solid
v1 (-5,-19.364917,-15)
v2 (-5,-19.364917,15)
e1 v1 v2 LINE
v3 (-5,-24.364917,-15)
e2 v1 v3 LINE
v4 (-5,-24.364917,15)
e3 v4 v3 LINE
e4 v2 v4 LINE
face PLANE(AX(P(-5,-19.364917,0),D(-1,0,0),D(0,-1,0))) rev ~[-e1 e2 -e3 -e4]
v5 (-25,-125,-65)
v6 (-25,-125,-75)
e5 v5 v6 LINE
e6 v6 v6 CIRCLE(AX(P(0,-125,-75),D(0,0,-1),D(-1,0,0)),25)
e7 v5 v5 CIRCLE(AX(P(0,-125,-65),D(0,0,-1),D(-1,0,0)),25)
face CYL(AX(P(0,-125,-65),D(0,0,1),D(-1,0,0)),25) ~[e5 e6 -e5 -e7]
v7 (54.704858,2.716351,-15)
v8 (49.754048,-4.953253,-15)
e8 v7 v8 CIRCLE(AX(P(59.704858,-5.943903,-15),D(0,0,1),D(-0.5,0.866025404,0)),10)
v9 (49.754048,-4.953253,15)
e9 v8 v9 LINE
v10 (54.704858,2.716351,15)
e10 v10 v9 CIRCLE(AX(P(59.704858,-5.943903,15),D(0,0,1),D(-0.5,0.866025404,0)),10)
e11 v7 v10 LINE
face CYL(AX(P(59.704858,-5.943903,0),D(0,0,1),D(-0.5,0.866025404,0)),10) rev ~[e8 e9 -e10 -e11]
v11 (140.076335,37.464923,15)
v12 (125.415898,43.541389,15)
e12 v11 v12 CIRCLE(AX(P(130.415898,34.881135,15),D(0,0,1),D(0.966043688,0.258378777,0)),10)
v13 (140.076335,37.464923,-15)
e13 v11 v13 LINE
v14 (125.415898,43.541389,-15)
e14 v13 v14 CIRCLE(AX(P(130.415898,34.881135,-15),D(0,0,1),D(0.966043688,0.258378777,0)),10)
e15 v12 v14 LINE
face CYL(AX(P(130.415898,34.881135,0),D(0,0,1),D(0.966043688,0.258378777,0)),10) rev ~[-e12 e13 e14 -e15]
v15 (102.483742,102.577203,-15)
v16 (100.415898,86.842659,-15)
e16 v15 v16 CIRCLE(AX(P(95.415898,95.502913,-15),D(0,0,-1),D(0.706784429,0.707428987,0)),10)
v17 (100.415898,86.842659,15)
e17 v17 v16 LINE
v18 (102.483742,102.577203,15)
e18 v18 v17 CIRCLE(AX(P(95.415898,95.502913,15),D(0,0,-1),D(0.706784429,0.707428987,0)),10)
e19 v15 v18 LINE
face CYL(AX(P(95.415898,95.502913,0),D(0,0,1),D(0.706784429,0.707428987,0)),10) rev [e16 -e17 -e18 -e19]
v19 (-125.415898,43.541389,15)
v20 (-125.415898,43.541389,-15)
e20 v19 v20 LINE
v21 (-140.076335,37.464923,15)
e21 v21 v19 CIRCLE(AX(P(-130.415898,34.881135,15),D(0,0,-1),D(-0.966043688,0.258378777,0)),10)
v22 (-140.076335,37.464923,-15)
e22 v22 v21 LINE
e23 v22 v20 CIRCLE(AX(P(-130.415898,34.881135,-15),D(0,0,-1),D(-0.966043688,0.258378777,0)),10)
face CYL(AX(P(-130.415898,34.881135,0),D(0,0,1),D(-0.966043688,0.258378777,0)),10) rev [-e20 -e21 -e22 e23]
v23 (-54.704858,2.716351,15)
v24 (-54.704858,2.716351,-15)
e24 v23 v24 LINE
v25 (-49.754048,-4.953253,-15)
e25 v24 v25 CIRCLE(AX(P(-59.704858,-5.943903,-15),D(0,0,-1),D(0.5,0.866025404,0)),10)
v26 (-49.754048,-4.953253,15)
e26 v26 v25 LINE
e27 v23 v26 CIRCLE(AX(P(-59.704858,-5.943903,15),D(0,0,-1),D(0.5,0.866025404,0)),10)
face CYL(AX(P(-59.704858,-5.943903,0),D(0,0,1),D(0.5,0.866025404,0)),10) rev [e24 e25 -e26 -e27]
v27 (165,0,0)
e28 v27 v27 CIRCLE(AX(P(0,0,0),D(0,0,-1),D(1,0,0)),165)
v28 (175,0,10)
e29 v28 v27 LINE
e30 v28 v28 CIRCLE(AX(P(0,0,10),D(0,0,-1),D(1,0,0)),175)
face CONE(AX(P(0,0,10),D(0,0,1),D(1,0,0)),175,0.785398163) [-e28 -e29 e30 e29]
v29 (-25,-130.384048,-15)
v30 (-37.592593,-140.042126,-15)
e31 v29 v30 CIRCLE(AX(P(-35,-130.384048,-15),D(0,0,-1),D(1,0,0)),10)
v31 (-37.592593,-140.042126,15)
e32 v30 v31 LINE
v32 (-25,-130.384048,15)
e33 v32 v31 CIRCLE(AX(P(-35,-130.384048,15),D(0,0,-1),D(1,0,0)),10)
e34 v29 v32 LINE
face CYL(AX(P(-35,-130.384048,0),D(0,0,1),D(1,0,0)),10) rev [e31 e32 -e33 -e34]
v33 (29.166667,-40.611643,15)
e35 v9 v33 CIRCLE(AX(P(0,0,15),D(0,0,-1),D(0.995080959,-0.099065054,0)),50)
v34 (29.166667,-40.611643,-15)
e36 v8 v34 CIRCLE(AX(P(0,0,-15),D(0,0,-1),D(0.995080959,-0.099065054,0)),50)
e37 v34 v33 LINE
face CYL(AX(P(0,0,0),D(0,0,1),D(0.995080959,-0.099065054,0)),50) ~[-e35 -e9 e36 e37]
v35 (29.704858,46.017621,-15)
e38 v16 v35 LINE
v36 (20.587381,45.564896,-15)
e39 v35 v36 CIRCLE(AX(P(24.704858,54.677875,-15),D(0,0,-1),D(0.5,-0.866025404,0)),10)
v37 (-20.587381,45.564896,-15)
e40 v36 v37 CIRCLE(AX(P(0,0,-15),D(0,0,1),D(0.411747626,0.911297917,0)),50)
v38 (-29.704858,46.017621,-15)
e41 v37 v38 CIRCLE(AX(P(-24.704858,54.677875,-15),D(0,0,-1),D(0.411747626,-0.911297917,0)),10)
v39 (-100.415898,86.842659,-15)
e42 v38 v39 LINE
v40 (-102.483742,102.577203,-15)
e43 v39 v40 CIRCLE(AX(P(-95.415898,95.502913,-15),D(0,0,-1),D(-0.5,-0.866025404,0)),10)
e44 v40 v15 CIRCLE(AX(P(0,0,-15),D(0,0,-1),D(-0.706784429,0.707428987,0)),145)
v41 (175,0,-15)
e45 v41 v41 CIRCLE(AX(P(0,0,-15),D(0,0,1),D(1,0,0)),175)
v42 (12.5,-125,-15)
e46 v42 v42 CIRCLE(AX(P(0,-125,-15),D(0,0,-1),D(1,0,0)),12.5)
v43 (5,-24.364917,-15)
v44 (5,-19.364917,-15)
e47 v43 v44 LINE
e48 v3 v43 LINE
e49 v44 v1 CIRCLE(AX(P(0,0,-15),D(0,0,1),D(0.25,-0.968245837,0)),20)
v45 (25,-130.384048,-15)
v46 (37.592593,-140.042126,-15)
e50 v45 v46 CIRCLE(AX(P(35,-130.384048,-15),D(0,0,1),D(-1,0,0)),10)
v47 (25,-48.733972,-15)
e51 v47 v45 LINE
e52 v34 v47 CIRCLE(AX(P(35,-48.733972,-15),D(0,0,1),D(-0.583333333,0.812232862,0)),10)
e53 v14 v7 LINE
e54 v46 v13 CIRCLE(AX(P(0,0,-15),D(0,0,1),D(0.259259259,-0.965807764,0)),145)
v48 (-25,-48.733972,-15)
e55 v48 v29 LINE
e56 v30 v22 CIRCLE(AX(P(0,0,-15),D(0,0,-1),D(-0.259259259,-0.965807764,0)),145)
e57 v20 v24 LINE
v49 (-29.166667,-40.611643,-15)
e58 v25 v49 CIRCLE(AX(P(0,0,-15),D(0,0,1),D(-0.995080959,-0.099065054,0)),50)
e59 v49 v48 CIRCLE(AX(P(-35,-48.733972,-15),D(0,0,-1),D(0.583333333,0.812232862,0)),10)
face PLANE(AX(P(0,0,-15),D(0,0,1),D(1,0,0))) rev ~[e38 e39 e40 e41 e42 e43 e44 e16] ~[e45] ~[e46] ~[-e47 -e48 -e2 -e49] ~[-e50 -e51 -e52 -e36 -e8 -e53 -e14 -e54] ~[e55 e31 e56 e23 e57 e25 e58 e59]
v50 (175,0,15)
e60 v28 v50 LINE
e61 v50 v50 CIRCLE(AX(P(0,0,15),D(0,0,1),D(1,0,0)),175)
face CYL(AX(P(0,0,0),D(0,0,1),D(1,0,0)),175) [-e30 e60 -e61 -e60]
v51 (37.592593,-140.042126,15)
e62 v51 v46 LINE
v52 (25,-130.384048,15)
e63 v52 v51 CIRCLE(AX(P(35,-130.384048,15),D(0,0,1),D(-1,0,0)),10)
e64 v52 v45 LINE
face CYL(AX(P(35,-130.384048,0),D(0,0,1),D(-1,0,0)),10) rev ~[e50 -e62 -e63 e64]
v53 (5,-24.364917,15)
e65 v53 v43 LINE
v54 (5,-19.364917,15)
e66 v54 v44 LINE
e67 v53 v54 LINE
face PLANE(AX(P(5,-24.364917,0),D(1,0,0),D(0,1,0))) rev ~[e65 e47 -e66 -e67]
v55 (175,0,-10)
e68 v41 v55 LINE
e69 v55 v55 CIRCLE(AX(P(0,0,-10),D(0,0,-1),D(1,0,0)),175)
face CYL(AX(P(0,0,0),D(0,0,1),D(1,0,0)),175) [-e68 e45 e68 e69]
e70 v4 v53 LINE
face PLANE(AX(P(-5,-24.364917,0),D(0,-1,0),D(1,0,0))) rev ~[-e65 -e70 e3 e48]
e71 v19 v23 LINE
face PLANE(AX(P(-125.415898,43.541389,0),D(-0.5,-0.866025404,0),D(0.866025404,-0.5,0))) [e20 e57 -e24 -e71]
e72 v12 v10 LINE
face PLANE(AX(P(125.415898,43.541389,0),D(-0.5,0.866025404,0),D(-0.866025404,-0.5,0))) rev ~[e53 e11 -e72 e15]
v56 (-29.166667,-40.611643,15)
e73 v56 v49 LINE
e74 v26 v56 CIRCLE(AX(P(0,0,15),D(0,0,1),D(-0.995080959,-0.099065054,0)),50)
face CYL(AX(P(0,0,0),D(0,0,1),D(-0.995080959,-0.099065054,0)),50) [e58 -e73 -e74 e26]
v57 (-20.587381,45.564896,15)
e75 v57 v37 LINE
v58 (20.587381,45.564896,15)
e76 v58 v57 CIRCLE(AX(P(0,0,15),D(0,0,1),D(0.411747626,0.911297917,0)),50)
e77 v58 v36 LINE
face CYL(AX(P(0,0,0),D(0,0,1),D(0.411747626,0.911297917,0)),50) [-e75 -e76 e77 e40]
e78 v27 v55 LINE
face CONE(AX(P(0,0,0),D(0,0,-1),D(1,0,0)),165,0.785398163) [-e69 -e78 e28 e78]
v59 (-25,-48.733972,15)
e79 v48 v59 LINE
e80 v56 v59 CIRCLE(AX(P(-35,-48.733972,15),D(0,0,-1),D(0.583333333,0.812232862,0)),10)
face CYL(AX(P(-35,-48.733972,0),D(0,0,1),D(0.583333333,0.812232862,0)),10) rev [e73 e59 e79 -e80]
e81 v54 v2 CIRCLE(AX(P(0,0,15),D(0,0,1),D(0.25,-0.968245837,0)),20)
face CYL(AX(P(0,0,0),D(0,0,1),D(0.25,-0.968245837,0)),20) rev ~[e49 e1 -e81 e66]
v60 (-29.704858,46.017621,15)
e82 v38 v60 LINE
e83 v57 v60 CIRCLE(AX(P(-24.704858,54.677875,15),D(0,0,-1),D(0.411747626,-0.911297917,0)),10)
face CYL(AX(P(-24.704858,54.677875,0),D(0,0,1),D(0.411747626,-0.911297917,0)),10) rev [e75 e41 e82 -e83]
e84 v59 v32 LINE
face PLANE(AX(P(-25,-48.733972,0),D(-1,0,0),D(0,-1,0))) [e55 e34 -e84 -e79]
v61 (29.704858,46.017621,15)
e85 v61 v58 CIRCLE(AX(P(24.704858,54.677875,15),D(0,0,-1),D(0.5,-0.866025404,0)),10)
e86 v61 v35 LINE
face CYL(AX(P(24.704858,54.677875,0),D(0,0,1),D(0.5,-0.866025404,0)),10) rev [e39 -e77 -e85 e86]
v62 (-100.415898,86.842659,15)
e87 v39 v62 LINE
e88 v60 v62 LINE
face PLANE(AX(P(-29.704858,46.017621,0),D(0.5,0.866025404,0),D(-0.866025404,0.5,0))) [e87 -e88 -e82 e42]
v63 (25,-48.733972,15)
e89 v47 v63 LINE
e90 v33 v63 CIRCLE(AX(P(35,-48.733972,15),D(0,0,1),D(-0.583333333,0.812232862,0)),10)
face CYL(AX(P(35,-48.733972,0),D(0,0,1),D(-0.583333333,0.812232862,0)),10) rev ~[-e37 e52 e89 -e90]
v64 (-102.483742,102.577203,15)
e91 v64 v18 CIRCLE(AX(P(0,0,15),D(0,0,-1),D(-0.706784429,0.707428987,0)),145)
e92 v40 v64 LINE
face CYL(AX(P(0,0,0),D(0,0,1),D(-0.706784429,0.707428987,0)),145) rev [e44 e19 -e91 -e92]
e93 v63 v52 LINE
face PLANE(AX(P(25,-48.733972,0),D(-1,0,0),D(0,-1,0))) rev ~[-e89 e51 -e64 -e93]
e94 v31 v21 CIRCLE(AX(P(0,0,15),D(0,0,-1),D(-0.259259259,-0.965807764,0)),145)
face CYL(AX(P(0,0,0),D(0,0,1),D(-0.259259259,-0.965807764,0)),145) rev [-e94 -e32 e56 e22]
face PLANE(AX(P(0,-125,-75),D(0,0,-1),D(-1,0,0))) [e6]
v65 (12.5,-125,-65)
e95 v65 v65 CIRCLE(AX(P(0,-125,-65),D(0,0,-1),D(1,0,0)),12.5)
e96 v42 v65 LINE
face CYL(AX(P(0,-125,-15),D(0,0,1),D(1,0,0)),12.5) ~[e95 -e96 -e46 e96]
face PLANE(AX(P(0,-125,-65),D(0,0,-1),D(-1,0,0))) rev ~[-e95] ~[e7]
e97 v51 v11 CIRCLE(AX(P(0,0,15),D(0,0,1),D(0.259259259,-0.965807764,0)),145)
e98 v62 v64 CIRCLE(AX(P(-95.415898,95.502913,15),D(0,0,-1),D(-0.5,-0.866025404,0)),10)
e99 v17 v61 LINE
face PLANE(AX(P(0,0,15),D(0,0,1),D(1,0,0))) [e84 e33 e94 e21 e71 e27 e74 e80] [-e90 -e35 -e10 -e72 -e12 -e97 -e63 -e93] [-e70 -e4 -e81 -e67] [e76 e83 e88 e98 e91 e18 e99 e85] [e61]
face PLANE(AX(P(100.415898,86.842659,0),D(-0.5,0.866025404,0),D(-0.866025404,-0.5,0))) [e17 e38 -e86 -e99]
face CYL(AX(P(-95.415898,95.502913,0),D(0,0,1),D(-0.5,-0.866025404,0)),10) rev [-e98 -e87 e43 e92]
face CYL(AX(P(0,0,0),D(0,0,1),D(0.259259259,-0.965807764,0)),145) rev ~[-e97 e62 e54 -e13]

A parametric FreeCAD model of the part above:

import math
import FreeCAD as App
import Part
import Sketcher
Q = App.Units.Quantity

doc = App.newDocument("Part")
body = doc.addObject("PartDesign::Body", "Body")

sketch1 = body.newObject("Sketcher::SketchObject", "Sketch")
sketch1.AttachmentSupport = (doc.getObject("XY_Plane"), [""])
sketch1.MapMode = "FlatFace"
sketch1.addGeometry([
    Part.Circle(App.Vector(0, 0, 0), App.Vector(0, 0, 1), 175),
    Part.ArcOfCircle(Part.Circle(App.Vector(-35, -49, 0), App.Vector(0, 0, 1), 10), math.radians(0), math.radians(54)),
    Part.LineSegment(App.Vector(-25, -49, 0), App.Vector(-25, -130, 0)),
    Part.ArcOfCircle(Part.Circle(App.Vector(-35, -130, 0), App.Vector(0, 0, 1), 10), math.radians(-105), math.radians(0)),
    Part.ArcOfCircle(Part.Circle(App.Vector(0, 0, 0), App.Vector(0, 0, 1), 145), math.radians(165), math.radians(255)),
    Part.ArcOfCircle(Part.Circle(App.Vector(-130, 35, 0), App.Vector(0, 0, 1), 10), math.radians(60), math.radians(165)),
    Part.LineSegment(App.Vector(-125, 44, 0), App.Vector(-55, 3, 0)),
    Part.ArcOfCircle(Part.Circle(App.Vector(-60, -6, 0), App.Vector(0, 0, 1), 10), math.radians(6), math.radians(60)),
    Part.ArcOfCircle(Part.Circle(App.Vector(0, 0, 0), App.Vector(0, 0, 1), 50), math.radians(-174), math.radians(-126)),
    Part.LineSegment(App.Vector(-5, -24, 0), App.Vector(-5, -19, 0)),
    Part.ArcOfCircle(Part.Circle(App.Vector(0, 0, 0), App.Vector(0, 0, 1), 20), math.radians(-76), math.radians(256)),
    Part.LineSegment(App.Vector(5, -19, 0), App.Vector(5, -24, 0)),
    Part.LineSegment(App.Vector(5, -24, 0), App.Vector(-5, -24, 0)),
    Part.LineSegment(App.Vector(25, -130, 0), App.Vector(25, -49, 0)),
    Part.ArcOfCircle(Part.Circle(App.Vector(35, -49, 0), App.Vector(0, 0, 1), 10), math.radians(126), math.radians(180)),
    Part.ArcOfCircle(Part.Circle(App.Vector(0, 0, 0), App.Vector(0, 0, 1), 50), math.radians(-54), math.radians(-6)),
    Part.ArcOfCircle(Part.Circle(App.Vector(60, -6, 0), App.Vector(0, 0, 1), 10), math.radians(120), math.radians(174)),
    Part.LineSegment(App.Vector(55, 3, 0), App.Vector(125, 44, 0)),
    Part.ArcOfCircle(Part.Circle(App.Vector(130, 35, 0), App.Vector(0, 0, 1), 10), math.radians(15), math.radians(120)),
    Part.ArcOfCircle(Part.Circle(App.Vector(0, 0, 0), App.Vector(0, 0, 1), 145), math.radians(-75), math.radians(15)),
    Part.ArcOfCircle(Part.Circle(App.Vector(35, -130, 0), App.Vector(0, 0, 1), 10), math.radians(180), math.radians(285)),
    Part.ArcOfCircle(Part.Circle(App.Vector(-25, 55, 0), App.Vector(0, 0, 1), 10), math.radians(-120), math.radians(-66)),
    Part.LineSegment(App.Vector(-30, 46, 0), App.Vector(-100, 87, 0)),
    Part.ArcOfCircle(Part.Circle(App.Vector(-95, 96, 0), App.Vector(0, 0, 1), 10), math.radians(135), math.radians(240)),
    Part.ArcOfCircle(Part.Circle(App.Vector(0, 0, 0), App.Vector(0, 0, 1), 145), math.radians(45), math.radians(135)),
    Part.ArcOfCircle(Part.Circle(App.Vector(95, 96, 0), App.Vector(0, 0, 1), 10), math.radians(-60), math.radians(45)),
    Part.LineSegment(App.Vector(100, 87, 0), App.Vector(30, 46, 0)),
    Part.ArcOfCircle(Part.Circle(App.Vector(25, 55, 0), App.Vector(0, 0, 1), 10), math.radians(-114), math.radians(-60)),
    Part.ArcOfCircle(Part.Circle(App.Vector(0, 0, 0), App.Vector(0, 0, 1), 50), math.radians(66), math.radians(114)),
], False)
sketch1.addConstraint([
    Sketcher.Constraint("Tangent", 1, 1, 2, 1),
    Sketcher.Constraint("Tangent", 2, 2, 3, 2),
    Sketcher.Constraint("Tangent", 3, 1, 4, 2),
    Sketcher.Constraint("Tangent", 4, 1, 5, 2),
    Sketcher.Constraint("Tangent", 5, 1, 6, 1),
    Sketcher.Constraint("Tangent", 6, 2, 7, 2),
    Sketcher.Constraint("Tangent", 7, 1, 8, 1),
    Sketcher.Constraint("Tangent", 8, 2, 1, 2),
    Sketcher.Constraint("Coincident", 9, 2, 10, 2),
    Sketcher.Constraint("Coincident", 10, 1, 11, 1),
    Sketcher.Constraint("Coincident", 11, 2, 12, 1),
    Sketcher.Constraint("Coincident", 12, 2, 9, 1),
    Sketcher.Constraint("Tangent", 13, 2, 14, 2),
    Sketcher.Constraint("Tangent", 14, 1, 15, 1),
    Sketcher.Constraint("Tangent", 15, 2, 16, 2),
    Sketcher.Constraint("Tangent", 16, 1, 17, 1),
    Sketcher.Constraint("Tangent", 17, 2, 18, 2),
    Sketcher.Constraint("Tangent", 18, 1, 19, 2),
    Sketcher.Constraint("Tangent", 19, 1, 20, 2),
    Sketcher.Constraint("Tangent", 20, 1, 13, 1),
    Sketcher.Constraint("Tangent", 21, 1, 22, 1),
    Sketcher.Constraint("Tangent", 22, 2, 23, 2),
    Sketcher.Constraint("Tangent", 23, 1, 24, 2),
    Sketcher.Constraint("Tangent", 24, 1, 25, 2),
    Sketcher.Constraint("Tangent", 25, 1, 26, 1),
    Sketcher.Constraint("Tangent", 26, 2, 27, 2),
    Sketcher.Constraint("Tangent", 27, 1, 28, 1),
    Sketcher.Constraint("Tangent", 28, 2, 21, 2),
    Sketcher.Constraint("Vertical", 2),
    Sketcher.Constraint("Vertical", 9),
    Sketcher.Constraint("Vertical", 11),
    Sketcher.Constraint("Horizontal", 12),
    Sketcher.Constraint("Vertical", 13),
    Sketcher.Constraint("Coincident", 0, 3, -1, 1),
    Sketcher.Constraint("Coincident", 4, 3, -1, 1),
    Sketcher.Constraint("Coincident", 8, 3, -1, 1),
    Sketcher.Constraint("Coincident", 10, 3, -1, 1),
    Sketcher.Constraint("Coincident", 15, 3, -1, 1),
    Sketcher.Constraint("Coincident", 19, 3, -1, 1),
    Sketcher.Constraint("Coincident", 24, 3, -1, 1),
    Sketcher.Constraint("Coincident", 28, 3, -1, 1),
    Sketcher.Constraint("Equal", 1, 3),
    Sketcher.Constraint("Equal", 3, 5),
    Sketcher.Constraint("Equal", 5, 7),
    Sketcher.Constraint("Equal", 7, 14),
    Sketcher.Constraint("Equal", 8, 15),
    Sketcher.Constraint("Equal", 14, 16),
    Sketcher.Constraint("Equal", 16, 18),
    Sketcher.Constraint("Equal", 4, 19),
    Sketcher.Constraint("Equal", 18, 20),
    Sketcher.Constraint("Equal", 20, 21),
    Sketcher.Constraint("Equal", 21, 23),
    Sketcher.Constraint("Equal", 19, 24),
    Sketcher.Constraint("Equal", 23, 25),
    Sketcher.Constraint("Equal", 25, 27),
    Sketcher.Constraint("Equal", 15, 28),
    Sketcher.Constraint("Symmetric", 6, 2, 16, 1, -2),
    Sketcher.Constraint("Symmetric", 22, 2, 25, 1, -2),
    Sketcher.Constraint("Parallel", 6, 22),
    Sketcher.Constraint("Horizontal", 1, 3, 14, 3),
    Sketcher.Constraint("Horizontal", 9, 2, 10, 1),
    Sketcher.Constraint("Equal", 17, 22),
    Sketcher.Constraint("Diameter", 0, Q("350 mm")),
    Sketcher.Constraint("Radius", 1, Q("10 mm")),
    Sketcher.Constraint("Radius", 4, Q("145 mm")),
    Sketcher.Constraint("Radius", 8, Q("50 mm")),
    Sketcher.Constraint("Radius", 10, Q("20 mm")),
    Sketcher.Constraint("DistanceX", 12, 2, 12, 1, Q("10 mm")),
    Sketcher.Constraint("DistanceY", 9, 1, 9, 2, Q("5 mm")),
    Sketcher.Constraint("Angle", 6, Q("-30 deg")),
    Sketcher.Constraint("DistanceX", 1, 3, -1, 1, Q("35 mm")),
    Sketcher.Constraint("DistanceX", 5, 3, 23, 3, Q("35 mm")),
])
pad1 = body.newObject("PartDesign::Pad", "Pad")
pad1.Profile = sketch1
pad1.Length = 30
pad1.Midplane = True

sketch2 = body.newObject("Sketcher::SketchObject", "Sketch001")
sketch2.AttachmentSupport = (doc.getObject("XY_Plane"), [""])
sketch2.MapMode = "FlatFace"
sketch2.AttachmentOffset = App.Placement(App.Vector(0, 0, -15), App.Rotation())
sketch2.addGeometry(Part.Circle(App.Vector(0, -125, 0), App.Vector(0, 0, 1), 12), False)
sketch2.addConstraint([
    Sketcher.Constraint("PointOnObject", 0, 3, -2),
    Sketcher.Constraint("Diameter", 0, Q("25 mm")),
    Sketcher.Constraint("DistanceY", 0, 3, -1, 1, Q("125 mm")),
])
pad2 = body.newObject("PartDesign::Pad", "Pad001")
pad2.Profile = sketch2
pad2.Length = 50
pad2.Reversed = True

sketch3 = body.newObject("Sketcher::SketchObject", "Sketch002")
sketch3.AttachmentSupport = (doc.getObject("XY_Plane"), [""])
sketch3.MapMode = "FlatFace"
sketch3.AttachmentOffset = App.Placement(App.Vector(0, 0, -65), App.Rotation())
sketch3.addGeometry(Part.Circle(App.Vector(0, -125, 0), App.Vector(0, 0, 1), 25), False)
sketch3.addConstraint([
    Sketcher.Constraint("PointOnObject", 0, 3, -2),
    Sketcher.Constraint("Diameter", 0, Q("50 mm")),
    Sketcher.Constraint("DistanceY", 0, 3, -1, 1, Q("125 mm")),
])
pad3 = body.newObject("PartDesign::Pad", "Pad002")
pad3.Profile = sketch3
pad3.Length = 10
pad3.Reversed = True

sketch4 = body.newObject("Sketcher::SketchObject", "Sketch003")
sketch4.AttachmentSupport = (doc.getObject("XZ_Plane"), [""])
sketch4.MapMode = "FlatFace"
sketch4.addGeometry([
    Part.LineSegment(App.Vector(-175, 10, 0), App.Vector(-165, 0, 0)),
    Part.LineSegment(App.Vector(-165, 0, 0), App.Vector(-175, -10, 0)),
    Part.LineSegment(App.Vector(-175, -10, 0), App.Vector(-175, 10, 0)),
], False)
sketch4.addConstraint([
    Sketcher.Constraint("Coincident", 0, 2, 1, 1),
    Sketcher.Constraint("Coincident", 1, 2, 2, 1),
    Sketcher.Constraint("Coincident", 2, 2, 0, 1),
    Sketcher.Constraint("Vertical", 2),
    Sketcher.Constraint("PointOnObject", 0, 2, -1),
    Sketcher.Constraint("Perpendicular", 0, 1),
    Sketcher.Constraint("Equal", 0, 1),
    Sketcher.Constraint("DistanceY", 2, 1, 2, 2, Q("20 mm")),
    Sketcher.Constraint("DistanceX", 0, 2, -1, 1, Q("165 mm")),
])
groove = body.newObject("PartDesign::Groove", "Groove")
groove.Profile = sketch4
groove.ReferenceAxis = (sketch4, ["V_Axis"])
groove.Angle = 360

doc.recompute()
